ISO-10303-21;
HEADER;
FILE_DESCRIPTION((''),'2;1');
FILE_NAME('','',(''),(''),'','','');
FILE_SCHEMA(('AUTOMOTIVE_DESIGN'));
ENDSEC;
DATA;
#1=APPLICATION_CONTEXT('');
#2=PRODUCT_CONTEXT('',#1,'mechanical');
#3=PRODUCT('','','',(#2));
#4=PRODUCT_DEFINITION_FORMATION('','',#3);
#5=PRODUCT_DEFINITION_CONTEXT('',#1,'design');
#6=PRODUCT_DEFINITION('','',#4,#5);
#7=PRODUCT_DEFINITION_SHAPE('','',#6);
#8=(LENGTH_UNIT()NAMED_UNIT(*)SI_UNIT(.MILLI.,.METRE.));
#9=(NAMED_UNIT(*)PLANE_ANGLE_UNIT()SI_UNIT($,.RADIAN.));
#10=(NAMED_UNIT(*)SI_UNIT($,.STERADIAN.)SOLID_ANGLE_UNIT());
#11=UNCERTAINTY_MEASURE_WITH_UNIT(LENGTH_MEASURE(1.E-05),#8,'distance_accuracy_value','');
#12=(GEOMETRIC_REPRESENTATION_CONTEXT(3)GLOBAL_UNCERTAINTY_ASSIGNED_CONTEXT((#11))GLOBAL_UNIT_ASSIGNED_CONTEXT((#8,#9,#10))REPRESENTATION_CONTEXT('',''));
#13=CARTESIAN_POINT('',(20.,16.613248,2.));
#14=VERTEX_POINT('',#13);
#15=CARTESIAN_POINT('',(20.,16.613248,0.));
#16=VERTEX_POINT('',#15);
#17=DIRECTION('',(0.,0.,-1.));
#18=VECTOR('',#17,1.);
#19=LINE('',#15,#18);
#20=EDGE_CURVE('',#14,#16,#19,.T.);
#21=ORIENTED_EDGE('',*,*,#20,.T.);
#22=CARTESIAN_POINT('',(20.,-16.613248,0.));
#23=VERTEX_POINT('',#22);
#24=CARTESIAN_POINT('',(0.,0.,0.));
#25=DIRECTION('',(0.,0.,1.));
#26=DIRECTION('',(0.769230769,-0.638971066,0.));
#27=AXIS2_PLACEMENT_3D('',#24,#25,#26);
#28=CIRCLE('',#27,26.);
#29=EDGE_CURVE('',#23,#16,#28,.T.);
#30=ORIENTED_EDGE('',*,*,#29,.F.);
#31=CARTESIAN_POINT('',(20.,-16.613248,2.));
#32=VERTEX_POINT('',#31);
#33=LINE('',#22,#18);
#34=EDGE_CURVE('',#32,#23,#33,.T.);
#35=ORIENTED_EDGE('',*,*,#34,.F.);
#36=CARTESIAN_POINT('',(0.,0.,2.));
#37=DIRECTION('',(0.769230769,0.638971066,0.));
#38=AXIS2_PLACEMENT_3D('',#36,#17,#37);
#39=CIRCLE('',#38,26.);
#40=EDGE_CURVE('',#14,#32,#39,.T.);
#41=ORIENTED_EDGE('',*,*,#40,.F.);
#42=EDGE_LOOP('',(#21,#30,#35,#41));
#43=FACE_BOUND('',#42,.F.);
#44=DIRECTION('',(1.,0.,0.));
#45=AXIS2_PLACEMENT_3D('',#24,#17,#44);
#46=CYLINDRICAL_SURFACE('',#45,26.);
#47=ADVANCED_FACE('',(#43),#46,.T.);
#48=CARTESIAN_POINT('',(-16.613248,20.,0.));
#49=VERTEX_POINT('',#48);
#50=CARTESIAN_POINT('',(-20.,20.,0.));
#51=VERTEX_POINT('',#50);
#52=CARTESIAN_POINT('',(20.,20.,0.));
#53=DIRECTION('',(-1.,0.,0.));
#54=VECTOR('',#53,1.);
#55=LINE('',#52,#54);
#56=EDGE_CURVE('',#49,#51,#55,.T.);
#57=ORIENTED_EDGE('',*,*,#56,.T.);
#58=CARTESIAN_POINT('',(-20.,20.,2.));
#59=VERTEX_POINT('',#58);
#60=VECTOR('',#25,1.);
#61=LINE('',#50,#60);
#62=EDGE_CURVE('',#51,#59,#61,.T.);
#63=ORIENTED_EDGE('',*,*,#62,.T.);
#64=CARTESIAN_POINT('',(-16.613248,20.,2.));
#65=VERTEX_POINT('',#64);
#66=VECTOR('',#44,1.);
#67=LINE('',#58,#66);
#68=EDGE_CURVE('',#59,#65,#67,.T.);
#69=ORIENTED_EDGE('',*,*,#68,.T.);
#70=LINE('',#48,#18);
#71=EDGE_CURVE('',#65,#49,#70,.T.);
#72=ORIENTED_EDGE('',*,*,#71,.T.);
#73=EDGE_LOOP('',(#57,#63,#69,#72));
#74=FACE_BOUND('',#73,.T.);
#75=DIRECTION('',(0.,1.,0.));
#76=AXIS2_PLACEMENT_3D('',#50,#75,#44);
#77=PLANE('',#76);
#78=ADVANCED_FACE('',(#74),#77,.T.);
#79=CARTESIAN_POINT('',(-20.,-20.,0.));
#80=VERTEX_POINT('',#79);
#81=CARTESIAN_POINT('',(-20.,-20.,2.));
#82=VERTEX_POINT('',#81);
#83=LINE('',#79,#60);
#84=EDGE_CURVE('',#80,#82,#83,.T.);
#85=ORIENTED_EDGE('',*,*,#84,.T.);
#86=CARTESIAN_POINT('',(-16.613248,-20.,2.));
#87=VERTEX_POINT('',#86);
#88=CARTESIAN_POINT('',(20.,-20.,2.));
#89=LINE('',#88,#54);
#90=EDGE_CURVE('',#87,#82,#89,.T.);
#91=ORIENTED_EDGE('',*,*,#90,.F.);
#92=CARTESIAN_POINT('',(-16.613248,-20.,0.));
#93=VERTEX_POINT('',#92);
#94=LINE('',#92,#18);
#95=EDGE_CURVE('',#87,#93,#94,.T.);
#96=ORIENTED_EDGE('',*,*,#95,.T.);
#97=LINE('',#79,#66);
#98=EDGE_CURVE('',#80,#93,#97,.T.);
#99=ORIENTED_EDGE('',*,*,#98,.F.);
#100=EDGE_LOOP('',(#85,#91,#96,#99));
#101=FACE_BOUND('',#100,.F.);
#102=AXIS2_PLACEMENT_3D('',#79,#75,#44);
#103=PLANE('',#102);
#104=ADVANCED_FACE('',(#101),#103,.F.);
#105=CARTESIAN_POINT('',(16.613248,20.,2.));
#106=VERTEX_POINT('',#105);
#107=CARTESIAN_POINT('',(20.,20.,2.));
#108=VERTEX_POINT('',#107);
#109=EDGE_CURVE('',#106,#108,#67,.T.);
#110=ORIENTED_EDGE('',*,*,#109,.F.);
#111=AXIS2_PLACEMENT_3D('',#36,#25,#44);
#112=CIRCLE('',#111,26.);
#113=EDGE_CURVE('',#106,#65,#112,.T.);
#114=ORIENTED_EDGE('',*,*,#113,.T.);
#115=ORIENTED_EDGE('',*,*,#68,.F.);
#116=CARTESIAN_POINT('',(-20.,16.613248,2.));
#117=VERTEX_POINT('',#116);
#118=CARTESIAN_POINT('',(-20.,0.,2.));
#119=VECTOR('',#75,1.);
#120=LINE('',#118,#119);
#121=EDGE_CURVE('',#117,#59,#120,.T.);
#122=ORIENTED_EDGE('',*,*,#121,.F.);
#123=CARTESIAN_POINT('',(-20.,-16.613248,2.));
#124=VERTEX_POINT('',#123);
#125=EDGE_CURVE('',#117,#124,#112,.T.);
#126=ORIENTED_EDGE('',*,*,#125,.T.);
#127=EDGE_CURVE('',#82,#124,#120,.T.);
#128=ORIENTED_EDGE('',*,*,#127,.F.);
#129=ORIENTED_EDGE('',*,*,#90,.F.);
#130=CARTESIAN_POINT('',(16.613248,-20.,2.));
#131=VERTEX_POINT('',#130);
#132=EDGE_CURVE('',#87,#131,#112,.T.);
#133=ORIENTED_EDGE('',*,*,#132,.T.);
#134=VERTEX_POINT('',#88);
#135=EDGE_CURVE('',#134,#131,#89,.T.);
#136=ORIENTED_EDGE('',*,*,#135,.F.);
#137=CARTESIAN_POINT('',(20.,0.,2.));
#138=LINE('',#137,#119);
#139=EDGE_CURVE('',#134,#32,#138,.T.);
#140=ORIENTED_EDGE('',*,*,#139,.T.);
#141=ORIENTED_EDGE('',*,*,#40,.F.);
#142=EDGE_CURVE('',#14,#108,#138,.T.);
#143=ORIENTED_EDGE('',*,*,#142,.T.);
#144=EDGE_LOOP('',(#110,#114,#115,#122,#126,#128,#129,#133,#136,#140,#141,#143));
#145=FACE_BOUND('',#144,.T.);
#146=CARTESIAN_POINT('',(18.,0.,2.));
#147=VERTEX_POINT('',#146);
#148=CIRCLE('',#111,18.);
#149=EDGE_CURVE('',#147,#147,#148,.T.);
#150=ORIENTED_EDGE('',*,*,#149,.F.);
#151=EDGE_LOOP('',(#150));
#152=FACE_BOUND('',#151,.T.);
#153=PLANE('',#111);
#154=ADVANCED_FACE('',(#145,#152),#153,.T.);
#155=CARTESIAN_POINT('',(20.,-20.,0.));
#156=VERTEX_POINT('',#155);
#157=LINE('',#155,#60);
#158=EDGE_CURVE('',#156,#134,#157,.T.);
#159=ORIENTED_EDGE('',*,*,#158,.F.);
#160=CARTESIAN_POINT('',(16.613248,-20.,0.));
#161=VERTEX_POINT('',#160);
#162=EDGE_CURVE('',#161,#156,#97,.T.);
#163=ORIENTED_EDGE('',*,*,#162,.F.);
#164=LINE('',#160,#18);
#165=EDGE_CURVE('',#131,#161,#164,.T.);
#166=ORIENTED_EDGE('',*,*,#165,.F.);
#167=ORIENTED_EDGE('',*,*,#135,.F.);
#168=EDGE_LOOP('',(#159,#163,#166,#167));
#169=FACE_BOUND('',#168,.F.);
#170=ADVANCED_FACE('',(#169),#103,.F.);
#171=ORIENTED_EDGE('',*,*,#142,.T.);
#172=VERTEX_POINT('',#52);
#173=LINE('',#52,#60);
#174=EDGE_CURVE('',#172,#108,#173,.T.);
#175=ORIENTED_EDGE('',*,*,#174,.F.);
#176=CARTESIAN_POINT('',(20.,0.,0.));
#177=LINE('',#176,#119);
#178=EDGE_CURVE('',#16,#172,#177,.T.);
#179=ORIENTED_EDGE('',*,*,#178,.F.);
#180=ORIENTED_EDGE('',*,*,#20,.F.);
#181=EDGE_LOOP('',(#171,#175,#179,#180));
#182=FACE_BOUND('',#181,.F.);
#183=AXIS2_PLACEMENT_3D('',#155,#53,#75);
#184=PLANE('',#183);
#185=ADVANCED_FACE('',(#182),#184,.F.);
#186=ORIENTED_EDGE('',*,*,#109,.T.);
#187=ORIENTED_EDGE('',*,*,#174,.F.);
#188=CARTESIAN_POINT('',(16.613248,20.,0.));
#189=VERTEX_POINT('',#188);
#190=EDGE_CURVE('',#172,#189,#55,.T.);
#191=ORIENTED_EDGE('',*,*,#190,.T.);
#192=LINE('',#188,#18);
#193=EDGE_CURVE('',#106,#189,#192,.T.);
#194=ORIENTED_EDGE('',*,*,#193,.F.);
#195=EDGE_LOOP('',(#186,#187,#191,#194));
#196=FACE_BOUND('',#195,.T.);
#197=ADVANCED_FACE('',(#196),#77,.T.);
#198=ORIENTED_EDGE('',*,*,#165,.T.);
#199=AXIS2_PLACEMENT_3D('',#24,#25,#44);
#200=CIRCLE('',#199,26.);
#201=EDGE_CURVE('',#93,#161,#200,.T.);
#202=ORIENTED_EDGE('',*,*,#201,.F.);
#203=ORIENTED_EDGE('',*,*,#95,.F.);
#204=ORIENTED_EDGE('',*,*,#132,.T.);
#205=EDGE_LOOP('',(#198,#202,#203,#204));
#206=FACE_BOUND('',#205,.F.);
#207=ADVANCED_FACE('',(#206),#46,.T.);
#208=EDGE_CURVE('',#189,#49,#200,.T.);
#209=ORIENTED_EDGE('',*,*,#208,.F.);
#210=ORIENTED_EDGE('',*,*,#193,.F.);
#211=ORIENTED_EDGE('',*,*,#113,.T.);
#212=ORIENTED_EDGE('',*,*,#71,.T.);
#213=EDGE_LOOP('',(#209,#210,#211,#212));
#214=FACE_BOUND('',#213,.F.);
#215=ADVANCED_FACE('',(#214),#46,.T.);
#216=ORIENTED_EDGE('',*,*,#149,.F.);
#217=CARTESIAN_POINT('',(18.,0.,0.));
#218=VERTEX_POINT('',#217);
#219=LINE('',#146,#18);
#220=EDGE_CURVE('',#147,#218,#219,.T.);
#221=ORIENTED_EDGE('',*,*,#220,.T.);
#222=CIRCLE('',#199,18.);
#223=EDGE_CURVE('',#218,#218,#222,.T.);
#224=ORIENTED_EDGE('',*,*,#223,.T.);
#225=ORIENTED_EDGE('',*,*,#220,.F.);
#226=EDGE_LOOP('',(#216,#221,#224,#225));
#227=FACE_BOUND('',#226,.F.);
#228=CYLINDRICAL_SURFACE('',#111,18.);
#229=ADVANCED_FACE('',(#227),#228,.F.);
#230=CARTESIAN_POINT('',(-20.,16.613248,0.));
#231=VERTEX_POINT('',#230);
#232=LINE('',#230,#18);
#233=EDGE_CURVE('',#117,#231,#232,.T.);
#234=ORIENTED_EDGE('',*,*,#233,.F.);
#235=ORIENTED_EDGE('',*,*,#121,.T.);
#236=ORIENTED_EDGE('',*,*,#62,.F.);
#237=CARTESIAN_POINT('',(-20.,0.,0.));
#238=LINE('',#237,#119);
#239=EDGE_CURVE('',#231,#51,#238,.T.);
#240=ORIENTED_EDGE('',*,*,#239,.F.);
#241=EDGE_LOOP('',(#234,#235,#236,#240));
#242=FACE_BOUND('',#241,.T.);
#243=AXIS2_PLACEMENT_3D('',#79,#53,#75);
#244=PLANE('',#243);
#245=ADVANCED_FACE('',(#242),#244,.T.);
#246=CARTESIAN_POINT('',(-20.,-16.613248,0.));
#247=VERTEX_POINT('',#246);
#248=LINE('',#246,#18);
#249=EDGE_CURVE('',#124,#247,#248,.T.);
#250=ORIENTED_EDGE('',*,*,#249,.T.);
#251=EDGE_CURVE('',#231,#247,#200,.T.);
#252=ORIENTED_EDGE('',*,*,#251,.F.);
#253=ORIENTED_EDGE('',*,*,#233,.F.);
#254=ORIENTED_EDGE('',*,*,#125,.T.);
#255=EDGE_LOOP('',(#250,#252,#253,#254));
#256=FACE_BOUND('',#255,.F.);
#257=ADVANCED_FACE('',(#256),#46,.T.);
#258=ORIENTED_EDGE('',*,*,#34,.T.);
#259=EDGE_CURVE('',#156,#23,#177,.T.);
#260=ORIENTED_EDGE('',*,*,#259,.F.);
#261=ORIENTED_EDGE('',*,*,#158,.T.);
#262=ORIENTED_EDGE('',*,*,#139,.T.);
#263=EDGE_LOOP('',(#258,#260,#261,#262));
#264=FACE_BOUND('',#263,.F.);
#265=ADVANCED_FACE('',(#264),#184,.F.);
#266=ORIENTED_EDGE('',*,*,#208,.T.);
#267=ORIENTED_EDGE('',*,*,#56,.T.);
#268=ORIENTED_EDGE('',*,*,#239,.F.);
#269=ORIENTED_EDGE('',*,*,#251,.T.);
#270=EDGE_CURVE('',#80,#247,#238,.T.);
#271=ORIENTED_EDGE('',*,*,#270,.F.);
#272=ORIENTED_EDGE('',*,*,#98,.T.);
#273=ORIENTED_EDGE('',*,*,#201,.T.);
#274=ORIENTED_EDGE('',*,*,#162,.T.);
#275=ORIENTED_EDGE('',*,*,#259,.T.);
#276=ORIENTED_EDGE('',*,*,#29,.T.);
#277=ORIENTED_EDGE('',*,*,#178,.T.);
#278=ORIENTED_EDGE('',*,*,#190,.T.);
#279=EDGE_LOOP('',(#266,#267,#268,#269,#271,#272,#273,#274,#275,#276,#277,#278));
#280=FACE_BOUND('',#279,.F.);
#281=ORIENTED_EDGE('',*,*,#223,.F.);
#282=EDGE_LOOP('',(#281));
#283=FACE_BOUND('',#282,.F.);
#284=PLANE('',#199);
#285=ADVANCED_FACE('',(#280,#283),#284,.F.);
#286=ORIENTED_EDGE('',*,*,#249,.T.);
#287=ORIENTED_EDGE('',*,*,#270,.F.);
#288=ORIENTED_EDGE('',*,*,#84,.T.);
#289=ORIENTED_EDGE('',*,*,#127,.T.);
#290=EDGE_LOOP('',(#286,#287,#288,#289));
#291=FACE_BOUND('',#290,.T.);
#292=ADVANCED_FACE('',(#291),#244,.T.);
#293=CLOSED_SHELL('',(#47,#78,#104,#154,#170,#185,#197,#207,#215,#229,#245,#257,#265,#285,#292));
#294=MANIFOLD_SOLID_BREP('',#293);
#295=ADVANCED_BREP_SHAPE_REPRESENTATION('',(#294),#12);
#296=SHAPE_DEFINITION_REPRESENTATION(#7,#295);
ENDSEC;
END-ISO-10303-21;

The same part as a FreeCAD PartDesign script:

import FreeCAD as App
import Part
import Sketcher
from FreeCAD import Vector


def add_polygon(sketch, points):
    """Adds a closed chain of lines whose ends are joined by coincident constraints."""
    first, n = sketch.GeometryCount, len(points)
    for a, b in zip(points, points[1:] + points[:1]):
        sketch.addGeometry(Part.LineSegment(App.Vector(*a, 0), App.Vector(*b, 0)), False)
    for i in range(n):
        sketch.addConstraint(Sketcher.Constraint("Coincident", first + i, 2, first + (i + 1) % n, 1))

doc = App.newDocument("Part")
body = doc.addObject("PartDesign::Body", "Body")

# Sketch on XY plane
sketch1 = doc.addObject("Sketcher::SketchObject", "Sketch")
body.addObject(sketch1)
sketch1.AttachmentSupport = (doc.XY_Plane, [""])
sketch1.MapMode = "FlatFace"
add_polygon(sketch1, [(-20, 20), (-20, -20), (20, -20), (20, 20)])  # lines 0-3
sketch1.addConstraint([
    Sketcher.Constraint("Vertical", 0),
    Sketcher.Constraint("Horizontal", 1),
    Sketcher.Constraint("Vertical", 2),
    Sketcher.Constraint("Horizontal", 3),
    Sketcher.Constraint("Symmetric", 0, 2, 2, 2, -1, 1),
    Sketcher.Constraint("Equal", 3, 0),
    Sketcher.Constraint("DistanceX", 1, 1, 1, 2, 40.0),
])
pad1 = doc.addObject("PartDesign::Pad", "Pad")
body.addObject(pad1)
pad1.Profile = sketch1
pad1.Length = 2

# Sketch on XY plane
sketch2 = doc.addObject("Sketcher::SketchObject", "Sketch001")
body.addObject(sketch2)
sketch2.AttachmentSupport = (doc.XY_Plane, [""])
sketch2.MapMode = "FlatFace"
add_polygon(sketch2, [(-16, 20), (-16, -20), (-14, -20), (-14, 20)])  # lines 0-3
add_polygon(sketch2, [(-12, 20), (-12, -20), (-10, -20), (-10, 20)])  # lines 4-7
sketch2.addConstraint([
    Sketcher.Constraint("Vertical", 0),
    Sketcher.Constraint("Horizontal", 1),
    Sketcher.Constraint("Vertical", 2),
    Sketcher.Constraint("Horizontal", 3),
    Sketcher.Constraint("Vertical", 4),
    Sketcher.Constraint("Horizontal", 5),
    Sketcher.Constraint("Vertical", 6),
    Sketcher.Constraint("Horizontal", 7),
    Sketcher.Constraint("Horizontal", 1, 2, 4, 2),
    Sketcher.Constraint("Horizontal", 3, 2, 6, 2),
    Sketcher.Constraint("Equal", 3, 5),
    Sketcher.Constraint("DistanceX", 1, 1, 1, 2, 2.0),
    Sketcher.Constraint("DistanceY", 0, 2, 0, 1, 40.0),
    Sketcher.Constraint("DistanceX", 0, 2, -1, 1, 16.0),
    Sketcher.Constraint("DistanceY", 0, 2, -1, 1, 20.0),
    Sketcher.Constraint("DistanceX", 4, 2, -1, 1, 12.0),
])
pad2 = doc.addObject("PartDesign::Pad", "Pad001")
body.addObject(pad2)
pad2.Profile = sketch2
pad2.Length = 2

# Sketch on XY plane
sketch3 = doc.addObject("Sketcher::SketchObject", "Sketch002")
body.addObject(sketch3)
sketch3.AttachmentSupport = (doc.XY_Plane, [""])
sketch3.MapMode = "FlatFace"
sketch3.addGeometry(Part.Circle(Vector(0, 0, 0), Vector(0, 0, 1), 26), False)
sketch3.addConstraint([
    Sketcher.Constraint("Coincident", 0, 3, -1, 1),
    Sketcher.Constraint("Diameter", 0, 52.0),
])
pad3 = doc.addObject("PartDesign::Pad", "Pad002")
body.addObject(pad3)
pad3.Profile = sketch3
pad3.Length = 2

# Sketch on XY plane
sketch4 = doc.addObject("Sketcher::SketchObject", "Sketch003")
body.addObject(sketch4)
sketch4.AttachmentSupport = (doc.XY_Plane, [""])
sketch4.MapMode = "FlatFace"
sketch4.AttachmentOffset = App.Placement(Vector(0, 0, 2), App.Rotation())
sketch4.addGeometry(Part.Circle(Vector(0, 0, 0), Vector(0, 0, 1), 18), False)
sketch4.addConstraint([
    Sketcher.Constraint("Coincident", 0, 3, -1, 1),
    Sketcher.Constraint("Diameter", 0, 36.0),
])
pocket1 = doc.addObject("PartDesign::Pocket", "Pocket")
body.addObject(pocket1)
pocket1.Profile = sketch4
pocket1.Length = 25

doc.recompute()
